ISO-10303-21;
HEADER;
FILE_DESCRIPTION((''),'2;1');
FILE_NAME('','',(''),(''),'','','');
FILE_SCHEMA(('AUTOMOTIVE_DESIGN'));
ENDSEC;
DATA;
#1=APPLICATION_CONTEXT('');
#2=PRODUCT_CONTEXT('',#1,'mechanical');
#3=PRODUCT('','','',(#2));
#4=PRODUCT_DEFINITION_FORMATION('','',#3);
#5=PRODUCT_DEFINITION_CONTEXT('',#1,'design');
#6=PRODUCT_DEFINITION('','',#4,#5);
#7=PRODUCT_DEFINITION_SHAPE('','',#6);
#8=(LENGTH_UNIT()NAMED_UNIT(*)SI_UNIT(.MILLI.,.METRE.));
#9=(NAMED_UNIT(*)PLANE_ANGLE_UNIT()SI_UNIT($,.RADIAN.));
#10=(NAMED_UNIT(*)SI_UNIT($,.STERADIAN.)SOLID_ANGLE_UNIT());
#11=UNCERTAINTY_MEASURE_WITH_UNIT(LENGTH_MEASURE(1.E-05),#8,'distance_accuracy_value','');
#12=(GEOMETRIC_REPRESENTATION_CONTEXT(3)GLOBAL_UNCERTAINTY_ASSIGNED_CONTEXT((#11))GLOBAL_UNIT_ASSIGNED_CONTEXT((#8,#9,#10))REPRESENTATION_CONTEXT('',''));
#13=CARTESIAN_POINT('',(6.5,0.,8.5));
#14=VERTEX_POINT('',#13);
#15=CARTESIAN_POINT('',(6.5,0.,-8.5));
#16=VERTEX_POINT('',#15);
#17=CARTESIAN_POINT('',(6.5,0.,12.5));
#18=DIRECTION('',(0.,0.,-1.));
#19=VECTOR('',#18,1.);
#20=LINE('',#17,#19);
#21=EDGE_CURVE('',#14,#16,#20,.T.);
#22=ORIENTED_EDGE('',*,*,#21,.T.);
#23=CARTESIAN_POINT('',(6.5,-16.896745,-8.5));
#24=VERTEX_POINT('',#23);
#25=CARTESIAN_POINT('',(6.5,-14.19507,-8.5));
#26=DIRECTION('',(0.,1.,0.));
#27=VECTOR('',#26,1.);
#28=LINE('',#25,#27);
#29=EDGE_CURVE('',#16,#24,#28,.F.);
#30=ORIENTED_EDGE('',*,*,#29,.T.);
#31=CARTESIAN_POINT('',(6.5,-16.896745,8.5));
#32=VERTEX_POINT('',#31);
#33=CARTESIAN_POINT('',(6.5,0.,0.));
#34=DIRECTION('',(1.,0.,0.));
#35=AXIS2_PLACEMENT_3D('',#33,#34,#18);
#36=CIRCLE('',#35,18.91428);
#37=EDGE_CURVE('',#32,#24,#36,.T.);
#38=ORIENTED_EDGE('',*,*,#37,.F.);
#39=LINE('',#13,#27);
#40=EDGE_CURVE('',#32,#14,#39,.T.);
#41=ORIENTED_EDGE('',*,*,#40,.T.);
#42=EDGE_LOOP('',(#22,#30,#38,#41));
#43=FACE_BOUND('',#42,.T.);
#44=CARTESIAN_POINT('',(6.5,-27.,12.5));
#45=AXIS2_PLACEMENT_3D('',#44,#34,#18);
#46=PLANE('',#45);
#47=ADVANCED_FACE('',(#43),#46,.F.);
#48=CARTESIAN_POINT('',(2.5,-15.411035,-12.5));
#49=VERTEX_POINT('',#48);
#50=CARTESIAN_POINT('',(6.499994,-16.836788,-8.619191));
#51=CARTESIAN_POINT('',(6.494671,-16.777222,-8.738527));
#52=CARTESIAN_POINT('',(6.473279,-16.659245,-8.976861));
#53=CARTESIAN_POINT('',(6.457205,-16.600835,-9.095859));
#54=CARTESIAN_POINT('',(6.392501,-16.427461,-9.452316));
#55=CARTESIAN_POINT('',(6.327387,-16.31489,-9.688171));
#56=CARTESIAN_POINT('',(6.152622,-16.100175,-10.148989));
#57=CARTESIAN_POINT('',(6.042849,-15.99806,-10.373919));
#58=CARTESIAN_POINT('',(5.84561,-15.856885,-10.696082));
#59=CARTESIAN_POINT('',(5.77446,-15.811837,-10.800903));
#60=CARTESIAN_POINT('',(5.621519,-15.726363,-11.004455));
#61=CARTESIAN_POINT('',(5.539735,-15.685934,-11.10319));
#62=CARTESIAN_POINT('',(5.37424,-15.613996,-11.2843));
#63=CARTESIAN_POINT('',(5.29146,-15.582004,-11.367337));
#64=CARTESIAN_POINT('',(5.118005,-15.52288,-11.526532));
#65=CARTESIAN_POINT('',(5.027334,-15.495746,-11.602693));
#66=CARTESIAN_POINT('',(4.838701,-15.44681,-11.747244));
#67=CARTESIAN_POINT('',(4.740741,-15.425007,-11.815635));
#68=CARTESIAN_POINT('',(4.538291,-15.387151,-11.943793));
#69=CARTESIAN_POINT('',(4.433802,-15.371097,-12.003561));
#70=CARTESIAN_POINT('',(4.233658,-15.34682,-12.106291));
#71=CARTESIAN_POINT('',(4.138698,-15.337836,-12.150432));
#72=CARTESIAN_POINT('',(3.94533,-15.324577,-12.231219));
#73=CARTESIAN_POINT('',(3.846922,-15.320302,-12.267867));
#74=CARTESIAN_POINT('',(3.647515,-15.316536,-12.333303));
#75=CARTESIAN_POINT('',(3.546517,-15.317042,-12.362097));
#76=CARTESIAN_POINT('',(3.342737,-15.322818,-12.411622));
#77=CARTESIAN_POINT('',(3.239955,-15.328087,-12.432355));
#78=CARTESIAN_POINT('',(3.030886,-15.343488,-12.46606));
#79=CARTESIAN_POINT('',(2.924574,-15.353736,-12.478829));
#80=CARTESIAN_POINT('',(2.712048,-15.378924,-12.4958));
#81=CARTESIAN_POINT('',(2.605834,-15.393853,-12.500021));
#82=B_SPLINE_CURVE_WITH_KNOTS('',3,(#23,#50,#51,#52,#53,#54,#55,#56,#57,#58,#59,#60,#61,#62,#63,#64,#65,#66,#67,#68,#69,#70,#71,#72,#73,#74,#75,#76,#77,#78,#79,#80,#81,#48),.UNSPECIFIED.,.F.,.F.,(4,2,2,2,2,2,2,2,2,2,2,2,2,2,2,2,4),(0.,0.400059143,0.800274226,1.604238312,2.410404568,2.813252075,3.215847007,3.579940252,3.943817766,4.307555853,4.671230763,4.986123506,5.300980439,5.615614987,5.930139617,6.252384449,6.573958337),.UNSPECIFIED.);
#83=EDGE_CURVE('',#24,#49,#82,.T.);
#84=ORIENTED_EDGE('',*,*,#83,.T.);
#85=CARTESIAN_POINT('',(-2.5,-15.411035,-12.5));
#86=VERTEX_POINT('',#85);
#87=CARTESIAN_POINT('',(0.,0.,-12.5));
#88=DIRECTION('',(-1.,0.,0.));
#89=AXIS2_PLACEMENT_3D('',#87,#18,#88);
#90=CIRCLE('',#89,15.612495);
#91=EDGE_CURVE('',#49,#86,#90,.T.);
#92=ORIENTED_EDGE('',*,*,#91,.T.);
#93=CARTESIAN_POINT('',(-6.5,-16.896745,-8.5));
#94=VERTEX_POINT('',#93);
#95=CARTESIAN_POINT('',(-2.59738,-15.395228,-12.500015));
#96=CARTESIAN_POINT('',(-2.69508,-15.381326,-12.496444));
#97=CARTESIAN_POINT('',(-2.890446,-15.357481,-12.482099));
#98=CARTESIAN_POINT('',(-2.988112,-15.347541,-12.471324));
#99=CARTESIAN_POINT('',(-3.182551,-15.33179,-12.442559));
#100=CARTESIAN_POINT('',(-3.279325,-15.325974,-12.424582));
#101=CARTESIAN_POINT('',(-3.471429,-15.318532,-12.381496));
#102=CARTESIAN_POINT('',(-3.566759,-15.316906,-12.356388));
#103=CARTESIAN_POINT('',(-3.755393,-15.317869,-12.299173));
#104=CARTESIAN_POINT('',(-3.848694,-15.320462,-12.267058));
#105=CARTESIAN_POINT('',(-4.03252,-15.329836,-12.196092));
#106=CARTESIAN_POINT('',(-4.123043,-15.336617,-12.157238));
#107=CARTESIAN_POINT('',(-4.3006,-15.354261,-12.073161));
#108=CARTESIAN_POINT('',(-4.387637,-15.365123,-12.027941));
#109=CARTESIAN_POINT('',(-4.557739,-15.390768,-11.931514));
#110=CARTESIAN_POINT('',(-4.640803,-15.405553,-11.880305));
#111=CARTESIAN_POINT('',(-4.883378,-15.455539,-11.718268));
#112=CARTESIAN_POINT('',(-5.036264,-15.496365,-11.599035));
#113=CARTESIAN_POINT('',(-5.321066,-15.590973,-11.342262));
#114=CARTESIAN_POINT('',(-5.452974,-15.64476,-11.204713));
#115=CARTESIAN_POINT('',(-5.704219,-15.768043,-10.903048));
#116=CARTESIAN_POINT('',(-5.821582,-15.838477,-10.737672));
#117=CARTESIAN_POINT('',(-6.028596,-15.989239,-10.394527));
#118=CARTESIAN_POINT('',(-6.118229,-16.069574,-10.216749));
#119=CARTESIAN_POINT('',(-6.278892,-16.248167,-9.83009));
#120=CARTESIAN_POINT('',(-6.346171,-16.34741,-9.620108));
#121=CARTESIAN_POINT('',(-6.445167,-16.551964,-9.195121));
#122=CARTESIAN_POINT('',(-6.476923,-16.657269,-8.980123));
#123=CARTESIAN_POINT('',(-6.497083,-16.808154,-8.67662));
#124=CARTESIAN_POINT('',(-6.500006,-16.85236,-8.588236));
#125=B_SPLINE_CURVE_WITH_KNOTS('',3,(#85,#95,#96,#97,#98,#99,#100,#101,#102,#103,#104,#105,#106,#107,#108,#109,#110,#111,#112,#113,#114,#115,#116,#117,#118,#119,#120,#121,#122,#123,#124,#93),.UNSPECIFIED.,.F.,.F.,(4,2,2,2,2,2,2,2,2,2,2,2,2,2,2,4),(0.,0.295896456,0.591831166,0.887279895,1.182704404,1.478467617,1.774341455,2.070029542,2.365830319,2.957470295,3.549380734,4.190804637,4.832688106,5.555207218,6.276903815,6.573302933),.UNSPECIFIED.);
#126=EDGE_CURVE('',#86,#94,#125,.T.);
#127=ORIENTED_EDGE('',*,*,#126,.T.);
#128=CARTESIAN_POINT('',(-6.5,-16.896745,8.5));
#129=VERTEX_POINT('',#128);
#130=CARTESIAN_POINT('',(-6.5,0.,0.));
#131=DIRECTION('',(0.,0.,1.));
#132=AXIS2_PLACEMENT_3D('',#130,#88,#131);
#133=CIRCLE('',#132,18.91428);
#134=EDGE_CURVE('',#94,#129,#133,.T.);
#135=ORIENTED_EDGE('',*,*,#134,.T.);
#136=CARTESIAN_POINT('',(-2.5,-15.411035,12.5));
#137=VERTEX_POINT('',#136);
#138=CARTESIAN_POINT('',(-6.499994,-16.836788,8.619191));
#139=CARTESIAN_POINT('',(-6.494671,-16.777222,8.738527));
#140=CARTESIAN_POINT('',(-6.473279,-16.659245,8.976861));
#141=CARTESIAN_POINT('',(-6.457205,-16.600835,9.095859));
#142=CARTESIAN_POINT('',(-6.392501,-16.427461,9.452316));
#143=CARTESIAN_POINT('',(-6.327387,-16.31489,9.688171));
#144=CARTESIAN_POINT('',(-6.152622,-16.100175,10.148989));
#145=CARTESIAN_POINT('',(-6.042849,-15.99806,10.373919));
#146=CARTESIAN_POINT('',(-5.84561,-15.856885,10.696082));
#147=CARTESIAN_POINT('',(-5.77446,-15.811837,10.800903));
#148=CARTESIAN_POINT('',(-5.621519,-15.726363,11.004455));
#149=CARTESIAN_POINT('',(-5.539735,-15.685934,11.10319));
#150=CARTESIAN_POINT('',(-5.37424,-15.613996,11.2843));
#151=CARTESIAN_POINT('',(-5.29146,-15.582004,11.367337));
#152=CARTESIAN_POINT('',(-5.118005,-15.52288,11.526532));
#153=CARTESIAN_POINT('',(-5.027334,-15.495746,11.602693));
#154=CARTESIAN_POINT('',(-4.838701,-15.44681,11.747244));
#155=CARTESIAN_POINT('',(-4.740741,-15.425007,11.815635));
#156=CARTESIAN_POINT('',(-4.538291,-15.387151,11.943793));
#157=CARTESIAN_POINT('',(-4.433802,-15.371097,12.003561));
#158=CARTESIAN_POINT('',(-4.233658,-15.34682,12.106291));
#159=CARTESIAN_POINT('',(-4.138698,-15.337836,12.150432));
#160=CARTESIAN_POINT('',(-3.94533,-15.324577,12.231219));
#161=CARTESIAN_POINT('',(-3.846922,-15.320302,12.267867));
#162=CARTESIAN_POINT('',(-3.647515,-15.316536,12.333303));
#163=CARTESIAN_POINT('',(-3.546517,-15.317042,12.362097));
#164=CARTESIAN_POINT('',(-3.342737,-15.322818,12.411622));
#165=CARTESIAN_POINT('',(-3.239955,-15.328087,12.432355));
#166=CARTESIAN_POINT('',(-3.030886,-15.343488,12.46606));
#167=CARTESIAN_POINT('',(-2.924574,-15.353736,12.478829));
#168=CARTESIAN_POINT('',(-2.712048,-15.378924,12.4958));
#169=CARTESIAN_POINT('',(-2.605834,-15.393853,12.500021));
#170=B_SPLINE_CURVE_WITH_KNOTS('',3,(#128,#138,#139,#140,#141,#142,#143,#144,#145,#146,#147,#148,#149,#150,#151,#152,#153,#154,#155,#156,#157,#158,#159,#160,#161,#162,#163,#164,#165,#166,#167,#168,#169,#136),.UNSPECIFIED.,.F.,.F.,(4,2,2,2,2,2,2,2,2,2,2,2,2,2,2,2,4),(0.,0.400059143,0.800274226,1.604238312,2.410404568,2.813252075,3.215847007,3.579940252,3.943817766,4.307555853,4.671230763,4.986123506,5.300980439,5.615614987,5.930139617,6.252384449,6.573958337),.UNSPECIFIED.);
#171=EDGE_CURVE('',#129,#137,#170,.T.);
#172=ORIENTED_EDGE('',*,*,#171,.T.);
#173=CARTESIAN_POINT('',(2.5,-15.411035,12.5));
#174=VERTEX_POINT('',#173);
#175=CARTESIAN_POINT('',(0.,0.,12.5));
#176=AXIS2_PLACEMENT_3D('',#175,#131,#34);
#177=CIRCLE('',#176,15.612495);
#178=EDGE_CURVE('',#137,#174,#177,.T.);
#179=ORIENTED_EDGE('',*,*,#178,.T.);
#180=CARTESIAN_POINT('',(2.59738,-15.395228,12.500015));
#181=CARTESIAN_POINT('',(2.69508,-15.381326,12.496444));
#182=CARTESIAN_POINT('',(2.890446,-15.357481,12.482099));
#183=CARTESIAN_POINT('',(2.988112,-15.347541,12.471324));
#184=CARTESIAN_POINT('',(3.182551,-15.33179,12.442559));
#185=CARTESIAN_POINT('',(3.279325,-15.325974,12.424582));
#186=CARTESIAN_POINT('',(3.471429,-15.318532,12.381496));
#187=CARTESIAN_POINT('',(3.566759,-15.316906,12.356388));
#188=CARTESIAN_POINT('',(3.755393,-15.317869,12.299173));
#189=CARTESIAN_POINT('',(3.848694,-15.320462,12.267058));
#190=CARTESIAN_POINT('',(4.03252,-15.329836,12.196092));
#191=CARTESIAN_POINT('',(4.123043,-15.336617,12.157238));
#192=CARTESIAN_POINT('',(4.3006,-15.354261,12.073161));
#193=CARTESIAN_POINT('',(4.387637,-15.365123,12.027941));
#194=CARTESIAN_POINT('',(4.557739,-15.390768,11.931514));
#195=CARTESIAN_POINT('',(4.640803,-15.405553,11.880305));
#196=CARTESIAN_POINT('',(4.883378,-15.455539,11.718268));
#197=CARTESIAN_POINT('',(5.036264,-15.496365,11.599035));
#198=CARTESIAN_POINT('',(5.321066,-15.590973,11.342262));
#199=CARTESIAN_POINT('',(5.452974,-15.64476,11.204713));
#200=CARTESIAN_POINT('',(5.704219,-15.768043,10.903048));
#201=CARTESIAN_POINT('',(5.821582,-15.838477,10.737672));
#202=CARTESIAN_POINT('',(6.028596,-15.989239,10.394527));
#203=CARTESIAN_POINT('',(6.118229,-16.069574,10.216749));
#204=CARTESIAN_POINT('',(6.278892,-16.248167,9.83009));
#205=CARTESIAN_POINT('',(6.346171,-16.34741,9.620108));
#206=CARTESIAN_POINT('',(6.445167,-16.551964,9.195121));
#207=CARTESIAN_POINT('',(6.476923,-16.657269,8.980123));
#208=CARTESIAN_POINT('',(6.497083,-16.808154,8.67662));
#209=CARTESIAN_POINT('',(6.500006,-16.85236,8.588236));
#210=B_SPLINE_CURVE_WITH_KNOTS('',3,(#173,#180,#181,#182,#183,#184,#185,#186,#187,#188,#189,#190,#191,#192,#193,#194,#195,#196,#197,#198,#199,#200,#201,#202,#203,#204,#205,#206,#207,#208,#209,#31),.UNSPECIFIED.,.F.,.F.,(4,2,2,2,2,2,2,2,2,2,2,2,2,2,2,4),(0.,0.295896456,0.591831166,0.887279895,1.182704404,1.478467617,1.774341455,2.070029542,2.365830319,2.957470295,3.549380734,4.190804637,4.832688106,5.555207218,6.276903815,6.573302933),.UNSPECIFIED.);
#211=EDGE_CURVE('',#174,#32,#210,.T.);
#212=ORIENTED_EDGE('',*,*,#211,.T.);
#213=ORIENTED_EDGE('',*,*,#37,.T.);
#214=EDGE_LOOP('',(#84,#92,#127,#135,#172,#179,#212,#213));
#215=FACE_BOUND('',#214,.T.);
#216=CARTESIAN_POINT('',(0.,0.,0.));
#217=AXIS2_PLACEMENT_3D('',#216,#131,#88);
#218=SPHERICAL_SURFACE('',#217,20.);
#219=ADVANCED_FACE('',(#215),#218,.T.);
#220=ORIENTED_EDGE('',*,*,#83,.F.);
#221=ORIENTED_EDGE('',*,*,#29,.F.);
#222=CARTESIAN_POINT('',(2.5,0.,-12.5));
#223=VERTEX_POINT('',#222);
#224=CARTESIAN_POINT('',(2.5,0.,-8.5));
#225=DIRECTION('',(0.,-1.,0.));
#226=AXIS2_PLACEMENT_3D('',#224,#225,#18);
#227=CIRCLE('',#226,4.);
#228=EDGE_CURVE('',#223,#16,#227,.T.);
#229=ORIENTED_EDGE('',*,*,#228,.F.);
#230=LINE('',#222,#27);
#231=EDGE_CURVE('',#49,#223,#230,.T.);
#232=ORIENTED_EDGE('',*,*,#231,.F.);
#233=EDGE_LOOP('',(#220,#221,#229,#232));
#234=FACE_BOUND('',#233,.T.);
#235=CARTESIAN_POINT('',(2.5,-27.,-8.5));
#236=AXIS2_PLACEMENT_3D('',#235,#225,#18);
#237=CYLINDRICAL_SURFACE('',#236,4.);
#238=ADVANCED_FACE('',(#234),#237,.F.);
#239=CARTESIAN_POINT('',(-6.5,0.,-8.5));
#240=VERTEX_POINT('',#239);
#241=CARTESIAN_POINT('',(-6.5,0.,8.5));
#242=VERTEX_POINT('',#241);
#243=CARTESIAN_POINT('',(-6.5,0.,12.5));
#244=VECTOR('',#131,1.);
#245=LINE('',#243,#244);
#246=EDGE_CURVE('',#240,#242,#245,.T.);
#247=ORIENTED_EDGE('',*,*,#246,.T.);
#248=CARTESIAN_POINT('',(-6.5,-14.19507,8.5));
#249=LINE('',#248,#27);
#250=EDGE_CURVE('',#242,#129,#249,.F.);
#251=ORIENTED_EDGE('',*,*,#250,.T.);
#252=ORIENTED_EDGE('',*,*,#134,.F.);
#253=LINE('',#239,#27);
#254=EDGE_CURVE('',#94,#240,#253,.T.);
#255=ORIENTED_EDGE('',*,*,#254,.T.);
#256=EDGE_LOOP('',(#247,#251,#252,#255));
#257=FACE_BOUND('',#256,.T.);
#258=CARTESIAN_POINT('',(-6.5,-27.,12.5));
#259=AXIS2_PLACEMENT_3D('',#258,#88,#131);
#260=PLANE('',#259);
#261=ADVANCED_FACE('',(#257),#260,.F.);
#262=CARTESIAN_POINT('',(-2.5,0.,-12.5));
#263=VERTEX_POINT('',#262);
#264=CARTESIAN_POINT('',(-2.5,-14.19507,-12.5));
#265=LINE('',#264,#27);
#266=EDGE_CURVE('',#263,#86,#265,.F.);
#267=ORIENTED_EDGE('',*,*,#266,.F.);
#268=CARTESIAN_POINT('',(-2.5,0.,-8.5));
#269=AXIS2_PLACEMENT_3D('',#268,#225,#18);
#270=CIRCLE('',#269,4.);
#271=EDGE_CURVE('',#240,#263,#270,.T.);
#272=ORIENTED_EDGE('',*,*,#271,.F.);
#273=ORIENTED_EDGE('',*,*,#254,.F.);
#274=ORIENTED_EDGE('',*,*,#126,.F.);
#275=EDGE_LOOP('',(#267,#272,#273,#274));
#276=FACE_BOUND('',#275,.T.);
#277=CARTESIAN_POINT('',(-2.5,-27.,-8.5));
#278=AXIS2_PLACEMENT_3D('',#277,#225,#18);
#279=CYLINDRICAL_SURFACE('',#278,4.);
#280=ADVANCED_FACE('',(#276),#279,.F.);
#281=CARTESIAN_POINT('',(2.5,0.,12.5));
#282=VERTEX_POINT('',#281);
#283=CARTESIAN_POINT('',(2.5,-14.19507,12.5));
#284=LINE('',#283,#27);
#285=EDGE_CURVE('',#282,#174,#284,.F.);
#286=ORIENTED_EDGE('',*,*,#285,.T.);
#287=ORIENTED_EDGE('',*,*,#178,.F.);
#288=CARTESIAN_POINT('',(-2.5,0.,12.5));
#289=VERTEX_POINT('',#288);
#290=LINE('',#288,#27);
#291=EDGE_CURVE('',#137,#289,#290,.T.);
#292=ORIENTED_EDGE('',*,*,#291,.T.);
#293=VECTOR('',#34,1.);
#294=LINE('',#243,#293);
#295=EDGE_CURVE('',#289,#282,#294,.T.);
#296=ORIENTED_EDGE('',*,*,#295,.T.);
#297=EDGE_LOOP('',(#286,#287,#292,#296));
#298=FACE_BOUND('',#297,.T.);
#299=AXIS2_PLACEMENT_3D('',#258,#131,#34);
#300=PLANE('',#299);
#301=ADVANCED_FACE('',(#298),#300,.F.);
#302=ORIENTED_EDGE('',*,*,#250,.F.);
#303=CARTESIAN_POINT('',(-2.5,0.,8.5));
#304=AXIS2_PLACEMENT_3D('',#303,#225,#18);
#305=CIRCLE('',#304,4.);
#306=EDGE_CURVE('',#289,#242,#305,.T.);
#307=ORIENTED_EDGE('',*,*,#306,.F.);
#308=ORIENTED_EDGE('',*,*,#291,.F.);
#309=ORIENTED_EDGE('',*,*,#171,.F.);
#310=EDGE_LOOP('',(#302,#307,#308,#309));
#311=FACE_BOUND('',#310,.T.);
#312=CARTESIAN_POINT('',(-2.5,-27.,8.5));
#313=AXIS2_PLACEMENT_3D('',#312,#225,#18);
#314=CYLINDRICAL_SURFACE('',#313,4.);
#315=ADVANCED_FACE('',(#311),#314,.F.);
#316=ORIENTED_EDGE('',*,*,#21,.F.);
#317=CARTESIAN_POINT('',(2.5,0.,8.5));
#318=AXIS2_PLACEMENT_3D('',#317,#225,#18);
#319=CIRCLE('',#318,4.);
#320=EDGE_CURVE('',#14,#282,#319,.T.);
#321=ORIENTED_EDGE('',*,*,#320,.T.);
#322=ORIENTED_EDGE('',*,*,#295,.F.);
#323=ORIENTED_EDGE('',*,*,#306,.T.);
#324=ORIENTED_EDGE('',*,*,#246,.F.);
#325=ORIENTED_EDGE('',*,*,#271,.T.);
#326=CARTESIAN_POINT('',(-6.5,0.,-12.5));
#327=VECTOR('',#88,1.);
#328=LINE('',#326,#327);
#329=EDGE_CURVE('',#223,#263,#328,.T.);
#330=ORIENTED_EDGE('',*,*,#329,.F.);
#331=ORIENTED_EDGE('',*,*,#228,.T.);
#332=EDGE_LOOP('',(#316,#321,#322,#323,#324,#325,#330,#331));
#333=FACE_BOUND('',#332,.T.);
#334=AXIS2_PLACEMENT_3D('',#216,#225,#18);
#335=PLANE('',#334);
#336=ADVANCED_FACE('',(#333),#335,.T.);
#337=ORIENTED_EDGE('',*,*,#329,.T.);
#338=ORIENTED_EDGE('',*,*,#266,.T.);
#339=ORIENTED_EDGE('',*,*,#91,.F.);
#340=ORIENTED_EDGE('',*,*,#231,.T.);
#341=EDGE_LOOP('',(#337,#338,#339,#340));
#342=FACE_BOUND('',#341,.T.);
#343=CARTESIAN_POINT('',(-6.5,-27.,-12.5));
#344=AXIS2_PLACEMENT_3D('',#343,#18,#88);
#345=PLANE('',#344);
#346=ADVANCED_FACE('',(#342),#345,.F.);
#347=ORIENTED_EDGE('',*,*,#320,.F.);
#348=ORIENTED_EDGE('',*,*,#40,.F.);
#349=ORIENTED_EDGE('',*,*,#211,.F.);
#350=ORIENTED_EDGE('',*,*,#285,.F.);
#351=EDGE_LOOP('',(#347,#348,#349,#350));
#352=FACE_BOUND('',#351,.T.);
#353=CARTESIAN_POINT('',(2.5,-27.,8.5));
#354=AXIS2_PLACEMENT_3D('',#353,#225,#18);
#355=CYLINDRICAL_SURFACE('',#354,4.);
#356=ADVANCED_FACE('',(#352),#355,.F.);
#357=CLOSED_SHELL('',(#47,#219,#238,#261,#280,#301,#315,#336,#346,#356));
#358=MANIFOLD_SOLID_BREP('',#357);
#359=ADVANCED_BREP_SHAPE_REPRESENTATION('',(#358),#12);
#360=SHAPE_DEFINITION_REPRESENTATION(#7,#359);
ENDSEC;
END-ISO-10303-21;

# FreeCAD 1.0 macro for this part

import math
import FreeCAD as App
import Part
import Sketcher
Q = App.Units.Quantity


def edges_at(feature, points):
    """Names of the edges that pass closest to the given points."""
    edges = feature.Shape.Edges
    near = lambda p: min(range(len(edges)), key=lambda i: edges[i].distToShape(Part.Vertex(*p))[0])
    return sorted({f"Edge{near(p) + 1}" for p in points})

doc = App.newDocument("Part")
params = doc.addObject("Spreadsheet::Sheet", "Params")
for row, (alias, value) in enumerate([
    ("sketch1_radius", "20 mm"),
    ("revolution_angle", "360 deg"),
    ("sketch2_width", "13 mm"),
    ("sketch2_height", "25 mm"),
    ("pocket1_length", "27 mm"),
    ("fillet_radius", "4 mm"),
], start=1):
    params.set(f"A{row}", alias)
    params.set(f"B{row}", "=" + value)
    params.setAlias(f"B{row}", alias)

body = doc.addObject("PartDesign::Body", "Body")

# Sketch on XZ plane
sketch1 = body.newObject("Sketcher::SketchObject", "Sketch")
sketch1.AttachmentSupport = (doc.getObject("XZ_Plane"), [""])
sketch1.MapMode = "FlatFace"
sketch1.addGeometry([
    Part.LineSegment(App.Vector(0, 20, 0), App.Vector(0, -20, 0)),
    Part.ArcOfCircle(Part.Circle(App.Vector(0, 0, 0), App.Vector(0, 0, 1), 20), math.radians(90), math.radians(270)),
], False)
sketch1.addConstraint([
    Sketcher.Constraint("Coincident", 0, 1, 1, 1),
    Sketcher.Constraint("Coincident", 1, 2, 0, 2),
    Sketcher.Constraint("Vertical", 0),
    Sketcher.Constraint("Coincident", 1, 3, -1, 1),
    Sketcher.Constraint("PointOnObject", 0, 1, -2),
    Sketcher.Constraint("Radius", 1, Q("20 mm")),
])
sketch1.setExpression("Constraints[5]", "Params.sketch1_radius")
revolution = body.newObject("PartDesign::Revolution", "Revolution")
revolution.Profile = sketch1
revolution.ReferenceAxis = (sketch1, ["V_Axis"])
revolution.setExpression("Angle", "Params.revolution_angle")

# Sketch on XZ plane
sketch2 = body.newObject("Sketcher::SketchObject", "Sketch001")
sketch2.AttachmentSupport = (doc.getObject("XZ_Plane"), [""])
sketch2.MapMode = "FlatFace"
sketch2.addGeometry([
    Part.LineSegment(App.Vector(-6, -12, 0), App.Vector(-6, 12, 0)),
    Part.LineSegment(App.Vector(-6, 12, 0), App.Vector(6, 12, 0)),
    Part.LineSegment(App.Vector(6, 12, 0), App.Vector(6, -12, 0)),
    Part.LineSegment(App.Vector(6, -12, 0), App.Vector(-6, -12, 0)),
], False)
sketch2.addConstraint([
    Sketcher.Constraint("Coincident", 0, 2, 1, 1),
    Sketcher.Constraint("Coincident", 1, 2, 2, 1),
    Sketcher.Constraint("Coincident", 2, 2, 3, 1),
    Sketcher.Constraint("Coincident", 3, 2, 0, 1),
    Sketcher.Constraint("Vertical", 0),
    Sketcher.Constraint("Horizontal", 1),
    Sketcher.Constraint("Vertical", 2),
    Sketcher.Constraint("Horizontal", 3),
    Sketcher.Constraint("Symmetric", 0, 2, 2, 2, -1, 1),
    Sketcher.Constraint("DistanceX", 1, 1, 1, 2, Q("13 mm")),
    Sketcher.Constraint("DistanceY", 0, 1, 0, 2, Q("25 mm")),
])
sketch2.setExpression("Constraints[9]", "Params.sketch2_width")
sketch2.setExpression("Constraints[10]", "Params.sketch2_height")
pocket1 = body.newObject("PartDesign::Pocket", "Pocket")
pocket1.Profile = sketch2
pocket1.setExpression("Length", "Params.pocket1_length")
pocket1.Reversed = True
doc.recompute()

fillet = body.newObject("PartDesign::Fillet", "Fillet")
fillet.Base = (pocket1, edges_at(pocket1, [
    (6.5, -7.098, -12.5),
    (6.5, -7.098, 12.5),
    (-6.5, -7.098, 12.5),
    (-6.5, -7.098, -12.5),
]))
fillet.setExpression("Radius", "Params.fillet_radius")

doc.recompute()
